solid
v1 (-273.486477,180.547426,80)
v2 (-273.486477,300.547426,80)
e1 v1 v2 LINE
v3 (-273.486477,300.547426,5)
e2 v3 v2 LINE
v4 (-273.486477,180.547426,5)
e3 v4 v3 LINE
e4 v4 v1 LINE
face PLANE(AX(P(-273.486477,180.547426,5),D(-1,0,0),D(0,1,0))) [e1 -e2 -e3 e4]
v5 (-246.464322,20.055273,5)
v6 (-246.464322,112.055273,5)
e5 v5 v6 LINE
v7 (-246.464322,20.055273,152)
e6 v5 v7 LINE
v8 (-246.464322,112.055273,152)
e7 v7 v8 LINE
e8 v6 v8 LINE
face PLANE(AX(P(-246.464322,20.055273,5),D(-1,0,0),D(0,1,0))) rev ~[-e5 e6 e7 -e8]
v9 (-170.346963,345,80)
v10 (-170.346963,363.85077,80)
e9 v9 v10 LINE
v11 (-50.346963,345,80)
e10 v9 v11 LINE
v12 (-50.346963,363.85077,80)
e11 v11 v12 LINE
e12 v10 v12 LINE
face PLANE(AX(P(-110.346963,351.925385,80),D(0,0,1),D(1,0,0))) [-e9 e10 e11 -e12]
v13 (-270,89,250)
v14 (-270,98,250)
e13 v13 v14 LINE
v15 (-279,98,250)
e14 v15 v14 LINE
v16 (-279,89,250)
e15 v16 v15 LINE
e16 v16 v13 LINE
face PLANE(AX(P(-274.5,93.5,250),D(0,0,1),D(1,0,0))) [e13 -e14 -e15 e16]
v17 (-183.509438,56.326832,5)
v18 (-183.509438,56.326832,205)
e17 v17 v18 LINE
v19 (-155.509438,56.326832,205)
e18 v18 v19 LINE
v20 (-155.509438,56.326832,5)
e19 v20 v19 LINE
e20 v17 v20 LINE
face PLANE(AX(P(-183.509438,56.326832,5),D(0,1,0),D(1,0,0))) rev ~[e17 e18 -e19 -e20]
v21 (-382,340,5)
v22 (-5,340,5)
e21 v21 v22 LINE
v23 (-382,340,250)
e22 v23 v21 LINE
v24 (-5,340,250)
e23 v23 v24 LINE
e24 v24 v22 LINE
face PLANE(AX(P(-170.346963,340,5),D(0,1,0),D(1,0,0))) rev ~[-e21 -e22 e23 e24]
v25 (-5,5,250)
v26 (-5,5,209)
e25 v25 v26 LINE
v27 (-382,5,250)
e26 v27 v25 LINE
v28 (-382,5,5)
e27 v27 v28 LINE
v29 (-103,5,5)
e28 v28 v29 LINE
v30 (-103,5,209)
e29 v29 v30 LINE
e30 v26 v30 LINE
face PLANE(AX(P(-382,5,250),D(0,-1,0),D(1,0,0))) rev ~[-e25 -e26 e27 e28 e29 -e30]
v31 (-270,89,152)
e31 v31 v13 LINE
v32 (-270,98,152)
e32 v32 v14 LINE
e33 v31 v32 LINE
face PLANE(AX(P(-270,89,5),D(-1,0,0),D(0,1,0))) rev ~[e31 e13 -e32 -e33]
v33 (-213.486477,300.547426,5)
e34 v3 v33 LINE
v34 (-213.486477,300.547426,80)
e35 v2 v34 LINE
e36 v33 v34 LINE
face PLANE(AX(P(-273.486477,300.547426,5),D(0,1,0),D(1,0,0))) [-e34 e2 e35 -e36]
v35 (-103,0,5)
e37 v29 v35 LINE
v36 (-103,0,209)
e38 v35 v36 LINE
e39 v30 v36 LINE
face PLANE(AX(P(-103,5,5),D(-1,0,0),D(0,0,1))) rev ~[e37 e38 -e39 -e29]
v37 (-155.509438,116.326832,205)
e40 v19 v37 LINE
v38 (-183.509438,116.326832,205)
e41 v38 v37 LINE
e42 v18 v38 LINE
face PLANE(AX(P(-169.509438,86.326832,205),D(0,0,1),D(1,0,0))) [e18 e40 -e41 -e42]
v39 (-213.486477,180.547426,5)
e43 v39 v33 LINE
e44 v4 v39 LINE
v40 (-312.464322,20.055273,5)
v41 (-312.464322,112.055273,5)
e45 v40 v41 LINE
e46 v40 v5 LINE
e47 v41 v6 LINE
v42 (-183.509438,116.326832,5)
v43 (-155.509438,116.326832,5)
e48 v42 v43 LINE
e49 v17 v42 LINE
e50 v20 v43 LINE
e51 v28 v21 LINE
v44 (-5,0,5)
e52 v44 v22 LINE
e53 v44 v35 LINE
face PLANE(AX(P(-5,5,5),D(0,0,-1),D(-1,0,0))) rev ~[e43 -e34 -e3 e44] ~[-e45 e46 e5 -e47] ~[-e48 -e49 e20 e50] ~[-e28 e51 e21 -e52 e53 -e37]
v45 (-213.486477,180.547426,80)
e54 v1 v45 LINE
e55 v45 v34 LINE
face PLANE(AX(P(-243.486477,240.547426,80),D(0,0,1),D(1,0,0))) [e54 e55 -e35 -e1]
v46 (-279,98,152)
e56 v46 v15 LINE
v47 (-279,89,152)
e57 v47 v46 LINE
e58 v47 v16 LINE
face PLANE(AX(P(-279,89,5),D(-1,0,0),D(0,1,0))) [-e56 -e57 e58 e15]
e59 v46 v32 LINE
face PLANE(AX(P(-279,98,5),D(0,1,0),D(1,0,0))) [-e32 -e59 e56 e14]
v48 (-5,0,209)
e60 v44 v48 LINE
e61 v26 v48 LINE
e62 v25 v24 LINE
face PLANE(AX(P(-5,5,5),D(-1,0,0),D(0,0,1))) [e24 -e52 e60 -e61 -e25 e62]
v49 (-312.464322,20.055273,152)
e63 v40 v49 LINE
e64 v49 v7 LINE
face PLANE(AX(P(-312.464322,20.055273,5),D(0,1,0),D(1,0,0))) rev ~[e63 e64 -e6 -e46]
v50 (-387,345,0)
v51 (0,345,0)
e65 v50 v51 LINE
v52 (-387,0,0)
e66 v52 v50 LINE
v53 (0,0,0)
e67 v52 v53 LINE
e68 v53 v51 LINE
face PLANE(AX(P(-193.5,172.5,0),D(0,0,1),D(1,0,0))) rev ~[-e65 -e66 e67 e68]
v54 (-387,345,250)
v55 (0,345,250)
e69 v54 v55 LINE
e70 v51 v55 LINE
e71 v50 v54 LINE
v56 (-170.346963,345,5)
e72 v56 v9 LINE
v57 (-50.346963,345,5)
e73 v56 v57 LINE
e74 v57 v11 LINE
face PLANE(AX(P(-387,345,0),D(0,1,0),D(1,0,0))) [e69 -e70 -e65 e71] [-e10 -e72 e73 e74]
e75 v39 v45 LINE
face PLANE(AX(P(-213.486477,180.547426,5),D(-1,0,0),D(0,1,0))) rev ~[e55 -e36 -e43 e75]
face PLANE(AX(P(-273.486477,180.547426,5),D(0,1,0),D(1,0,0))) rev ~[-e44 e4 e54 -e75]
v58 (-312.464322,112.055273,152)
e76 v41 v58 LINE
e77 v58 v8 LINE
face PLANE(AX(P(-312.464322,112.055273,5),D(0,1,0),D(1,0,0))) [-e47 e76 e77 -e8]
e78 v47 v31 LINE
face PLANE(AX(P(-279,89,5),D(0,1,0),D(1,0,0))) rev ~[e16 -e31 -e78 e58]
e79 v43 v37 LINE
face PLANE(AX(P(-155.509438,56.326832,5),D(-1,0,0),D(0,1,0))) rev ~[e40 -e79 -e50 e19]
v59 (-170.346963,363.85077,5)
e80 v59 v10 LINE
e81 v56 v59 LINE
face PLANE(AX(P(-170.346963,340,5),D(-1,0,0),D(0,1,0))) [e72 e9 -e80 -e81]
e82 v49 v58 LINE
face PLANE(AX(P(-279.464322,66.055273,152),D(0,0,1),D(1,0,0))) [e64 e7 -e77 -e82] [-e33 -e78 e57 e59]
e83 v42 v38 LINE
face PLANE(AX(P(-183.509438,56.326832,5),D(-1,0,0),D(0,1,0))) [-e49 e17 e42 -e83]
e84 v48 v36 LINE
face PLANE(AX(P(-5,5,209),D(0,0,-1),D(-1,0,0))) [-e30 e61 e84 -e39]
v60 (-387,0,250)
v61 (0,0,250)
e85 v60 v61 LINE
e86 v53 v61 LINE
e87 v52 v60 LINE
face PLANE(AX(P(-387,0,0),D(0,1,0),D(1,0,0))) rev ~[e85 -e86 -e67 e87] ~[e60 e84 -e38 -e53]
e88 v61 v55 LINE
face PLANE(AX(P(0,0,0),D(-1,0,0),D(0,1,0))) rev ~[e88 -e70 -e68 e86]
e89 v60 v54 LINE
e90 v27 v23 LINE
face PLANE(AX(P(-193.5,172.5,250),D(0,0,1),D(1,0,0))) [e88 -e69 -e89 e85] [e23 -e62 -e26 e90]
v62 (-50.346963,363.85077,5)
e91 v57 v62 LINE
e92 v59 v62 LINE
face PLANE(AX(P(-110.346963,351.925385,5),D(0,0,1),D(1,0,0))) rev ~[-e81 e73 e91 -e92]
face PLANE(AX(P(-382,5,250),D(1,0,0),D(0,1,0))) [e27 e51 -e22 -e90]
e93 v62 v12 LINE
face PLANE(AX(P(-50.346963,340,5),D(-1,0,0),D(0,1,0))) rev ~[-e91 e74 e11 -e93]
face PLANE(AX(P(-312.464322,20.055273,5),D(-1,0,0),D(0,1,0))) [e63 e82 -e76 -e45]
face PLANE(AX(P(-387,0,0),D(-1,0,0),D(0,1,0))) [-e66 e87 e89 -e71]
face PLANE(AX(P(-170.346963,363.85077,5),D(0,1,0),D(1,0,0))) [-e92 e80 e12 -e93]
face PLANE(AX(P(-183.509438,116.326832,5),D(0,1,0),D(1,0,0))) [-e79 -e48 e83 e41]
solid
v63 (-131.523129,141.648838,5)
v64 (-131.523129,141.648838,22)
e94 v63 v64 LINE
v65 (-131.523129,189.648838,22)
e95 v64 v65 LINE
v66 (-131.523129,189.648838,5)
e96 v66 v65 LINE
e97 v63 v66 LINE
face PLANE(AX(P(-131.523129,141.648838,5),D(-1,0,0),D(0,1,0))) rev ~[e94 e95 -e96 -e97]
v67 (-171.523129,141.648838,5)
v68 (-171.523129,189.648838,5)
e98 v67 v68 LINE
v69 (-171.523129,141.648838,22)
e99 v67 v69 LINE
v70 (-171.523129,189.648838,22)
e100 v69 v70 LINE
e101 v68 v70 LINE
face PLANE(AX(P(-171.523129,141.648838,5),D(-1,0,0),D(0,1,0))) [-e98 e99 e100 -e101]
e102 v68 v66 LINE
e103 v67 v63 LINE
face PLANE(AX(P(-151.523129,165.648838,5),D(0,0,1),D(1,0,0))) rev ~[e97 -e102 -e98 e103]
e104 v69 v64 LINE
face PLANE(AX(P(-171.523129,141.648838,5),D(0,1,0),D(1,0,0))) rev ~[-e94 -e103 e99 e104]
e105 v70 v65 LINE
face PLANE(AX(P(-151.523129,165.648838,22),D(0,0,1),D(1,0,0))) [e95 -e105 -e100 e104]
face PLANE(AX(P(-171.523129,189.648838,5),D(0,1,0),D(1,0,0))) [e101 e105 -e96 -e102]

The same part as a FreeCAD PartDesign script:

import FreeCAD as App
import Part
import Sketcher

V = App.Vector
Q = App.Units.Quantity

doc = App.newDocument("Part")
body = doc.addObject("PartDesign::Body", "Body")

# Sketch on XY plane
sketch1 = doc.addObject("Sketcher::SketchObject", "Sketch")
body.addObject(sketch1)
sketch1.AttachmentSupport = (doc.XY_Plane, [""])
sketch1.MapMode = "FlatFace"
sketch1.addGeometry([
    Part.LineSegment(V(-387, 345, 0), V(-387, 0, 0)),
    Part.LineSegment(V(-387, 0, 0), V(0, 0, 0)),
    Part.LineSegment(V(0, 0, 0), V(0, 345, 0)),
    Part.LineSegment(V(0, 345, 0), V(-387, 345, 0)),
], False)
sketch1.addConstraint([
    Sketcher.Constraint("Coincident", 0, 2, 1, 1),
    Sketcher.Constraint("Coincident", 1, 2, 2, 1),
    Sketcher.Constraint("Coincident", 2, 2, 3, 1),
    Sketcher.Constraint("Coincident", 3, 2, 0, 1),
    Sketcher.Constraint("Vertical", 0),
    Sketcher.Constraint("Horizontal", 1),
    Sketcher.Constraint("Vertical", 2),
    Sketcher.Constraint("Horizontal", 3),
    Sketcher.Constraint("Coincident", 1, 2, -1, 1),
    Sketcher.Constraint("DistanceX", 1, 1, 1, 2, Q("387 mm")),
    Sketcher.Constraint("DistanceY", 0, 2, 0, 1, Q("345 mm")),
])
pad1 = doc.addObject("PartDesign::Pad", "Pad")
body.addObject(pad1)
pad1.Profile = sketch1
pad1.Length = 250

# Sketch on XY plane
sketch2 = doc.addObject("Sketcher::SketchObject", "Sketch001")
body.addObject(sketch2)
sketch2.AttachmentSupport = (doc.XY_Plane, [""])
sketch2.MapMode = "FlatFace"
sketch2.AttachmentOffset = App.Placement(V(0, 0, 250), App.Rotation())
sketch2.addGeometry([
    Part.LineSegment(V(-382, 340, 0), V(-382, 5, 0)),
    Part.LineSegment(V(-382, 5, 0), V(-5, 5, 0)),
    Part.LineSegment(V(-5, 5, 0), V(-5, 340, 0)),
    Part.LineSegment(V(-5, 340, 0), V(-382, 340, 0)),
], False)
sketch2.addConstraint([
    Sketcher.Constraint("Coincident", 0, 2, 1, 1),
    Sketcher.Constraint("Coincident", 1, 2, 2, 1),
    Sketcher.Constraint("Coincident", 2, 2, 3, 1),
    Sketcher.Constraint("Coincident", 3, 2, 0, 1),
    Sketcher.Constraint("Vertical", 0),
    Sketcher.Constraint("Horizontal", 1),
    Sketcher.Constraint("Vertical", 2),
    Sketcher.Constraint("Horizontal", 3),
    Sketcher.Constraint("DistanceX", 1, 1, 1, 2, Q("377 mm")),
    Sketcher.Constraint("DistanceY", 0, 2, 0, 1, Q("335 mm")),
    Sketcher.Constraint("DistanceX", 0, 2, -1, 1, Q("382 mm")),
    Sketcher.Constraint("DistanceY", -1, 1, 0, 2, Q("5 mm")),
])
pocket1 = doc.addObject("PartDesign::Pocket", "Pocket")
body.addObject(pocket1)
pocket1.Profile = sketch2
pocket1.Length = 245

# Sketch on XZ plane
sketch3 = doc.addObject("Sketcher::SketchObject", "Sketch002")
body.addObject(sketch3)
sketch3.AttachmentSupport = (doc.XZ_Plane, [""])
sketch3.MapMode = "FlatFace"
sketch3.AttachmentOffset = App.Placement(V(0, 0, -5), App.Rotation())
sketch3.addGeometry([
    Part.LineSegment(V(-5, 209, 0), V(-5, 5, 0)),
    Part.LineSegment(V(-5, 5, 0), V(-103, 5, 0)),
    Part.LineSegment(V(-103, 5, 0), V(-103, 209, 0)),
    Part.LineSegment(V(-103, 209, 0), V(-5, 209, 0)),
], False)
sketch3.addConstraint([
    Sketcher.Constraint("Coincident", 0, 2, 1, 1),
    Sketcher.Constraint("Coincident", 1, 2, 2, 1),
    Sketcher.Constraint("Coincident", 2, 2, 3, 1),
    Sketcher.Constraint("Coincident", 3, 2, 0, 1),
    Sketcher.Constraint("Vertical", 0),
    Sketcher.Constraint("Horizontal", 1),
    Sketcher.Constraint("Vertical", 2),
    Sketcher.Constraint("Horizontal", 3),
    Sketcher.Constraint("DistanceX", 1, 2, 1, 1, Q("98 mm")),
    Sketcher.Constraint("DistanceY", 0, 2, 0, 1, Q("204 mm")),
    Sketcher.Constraint("DistanceX", 0, 2, -1, 1, Q("5 mm")),
    Sketcher.Constraint("DistanceY", -1, 1, 0, 2, Q("5 mm")),
])
pocket2 = doc.addObject("PartDesign::Pocket", "Pocket001")
body.addObject(pocket2)
pocket2.Profile = sketch3
pocket2.Length = 25
pocket2.Reversed = True

# Sketch on XY plane
sketch4 = doc.addObject("Sketcher::SketchObject", "Sketch003")
body.addObject(sketch4)
sketch4.AttachmentSupport = (doc.XY_Plane, [""])
sketch4.MapMode = "FlatFace"
sketch4.AttachmentOffset = App.Placement(V(0, 0, 5), App.Rotation())
sketch4.addGeometry([
    Part.LineSegment(V(-279, 98, 0), V(-279, 89, 0)),
    Part.LineSegment(V(-279, 89, 0), V(-270, 89, 0)),
    Part.LineSegment(V(-270, 89, 0), V(-270, 98, 0)),
    Part.LineSegment(V(-270, 98, 0), V(-279, 98, 0)),
], False)
sketch4.addConstraint([
    Sketcher.Constraint("Coincident", 0, 2, 1, 1),
    Sketcher.Constraint("Coincident", 1, 2, 2, 1),
    Sketcher.Constraint("Coincident", 2, 2, 3, 1),
    Sketcher.Constraint("Coincident", 3, 2, 0, 1),
    Sketcher.Constraint("Vertical", 0),
    Sketcher.Constraint("Horizontal", 1),
    Sketcher.Constraint("Vertical", 2),
    Sketcher.Constraint("Horizontal", 3),
    Sketcher.Constraint("Equal", 3, 0),
    Sketcher.Constraint("DistanceX", 1, 1, 1, 2, Q("9 mm")),
    Sketcher.Constraint("DistanceX", 0, 2, -1, 1, Q("279 mm")),
    Sketcher.Constraint("DistanceY", -1, 1, 0, 2, Q("89 mm")),
])
pad2 = doc.addObject("PartDesign::Pad", "Pad001")
body.addObject(pad2)
pad2.Profile = sketch4
pad2.Length = 245

# Sketch on XY plane
sketch5 = doc.addObject("Sketcher::SketchObject", "Sketch004")
body.addObject(sketch5)
sketch5.AttachmentSupport = (doc.XY_Plane, [""])
sketch5.MapMode = "FlatFace"
sketch5.AttachmentOffset = App.Placement(V(0, 0, 5), App.Rotation())
sketch5.addGeometry([
    Part.LineSegment(V(-273, 301, 0), V(-273, 181, 0)),
    Part.LineSegment(V(-273, 181, 0), V(-213, 181, 0)),
    Part.LineSegment(V(-213, 181, 0), V(-213, 301, 0)),
    Part.LineSegment(V(-213, 301, 0), V(-273, 301, 0)),
], False)
sketch5.addConstraint([
    Sketcher.Constraint("Coincident", 0, 2, 1, 1),
    Sketcher.Constraint("Coincident", 1, 2, 2, 1),
    Sketcher.Constraint("Coincident", 2, 2, 3, 1),
    Sketcher.Constraint("Coincident", 3, 2, 0, 1),
    Sketcher.Constraint("Vertical", 0),
    Sketcher.Constraint("Horizontal", 1),
    Sketcher.Constraint("Vertical", 2),
    Sketcher.Constraint("Horizontal", 3),
    Sketcher.Constraint("DistanceX", 1, 1, 1, 2, Q("60 mm")),
    Sketcher.Constraint("DistanceY", 0, 2, 0, 1, Q("120 mm")),
    Sketcher.Constraint("DistanceX", 0, 2, -1, 1, Q("273.486477 mm")),
    Sketcher.Constraint("DistanceY", -1, 1, 0, 2, Q("180.547426 mm")),
])
pad3 = doc.addObject("PartDesign::Pad", "Pad002")
body.addObject(pad3)
pad3.Profile = sketch5
pad3.Length = 75

# Sketch on XY plane
sketch6 = doc.addObject("Sketcher::SketchObject", "Sketch005")
body.addObject(sketch6)
sketch6.AttachmentSupport = (doc.XY_Plane, [""])
sketch6.MapMode = "FlatFace"
sketch6.AttachmentOffset = App.Placement(V(0, 0, 5), App.Rotation())
sketch6.addGeometry([
    Part.LineSegment(V(-170, 364, 0), V(-170, 340, 0)),
    Part.LineSegment(V(-170, 340, 0), V(-50, 340, 0)),
    Part.LineSegment(V(-50, 340, 0), V(-50, 364, 0)),
    Part.LineSegment(V(-50, 364, 0), V(-170, 364, 0)),
], False)
sketch6.addConstraint([
    Sketcher.Constraint("Coincident", 0, 2, 1, 1),
    Sketcher.Constraint("Coincident", 1, 2, 2, 1),
    Sketcher.Constraint("Coincident", 2, 2, 3, 1),
    Sketcher.Constraint("Coincident", 3, 2, 0, 1),
    Sketcher.Constraint("Vertical", 0),
    Sketcher.Constraint("Horizontal", 1),
    Sketcher.Constraint("Vertical", 2),
    Sketcher.Constraint("Horizontal", 3),
    Sketcher.Constraint("DistanceX", 1, 1, 1, 2, Q("120 mm")),
    Sketcher.Constraint("DistanceY", -1, 1, 0, 2, Q("340 mm")),
    Sketcher.Constraint("DistanceY", 0, 2, 0, 1, Q("23.85077 mm")),
    Sketcher.Constraint("DistanceX", 0, 2, -1, 1, Q("170.346963 mm")),
])
pad4 = doc.addObject("PartDesign::Pad", "Pad003")
body.addObject(pad4)
pad4.Profile = sketch6
pad4.Length = 75

# Sketch on XY plane
sketch7 = doc.addObject("Sketcher::SketchObject", "Sketch006")
body.addObject(sketch7)
sketch7.AttachmentSupport = (doc.XY_Plane, [""])
sketch7.MapMode = "FlatFace"
sketch7.AttachmentOffset = App.Placement(V(0, 0, 5), App.Rotation())
sketch7.addGeometry([
    Part.LineSegment(V(-184, 116, 0), V(-184, 56, 0)),
    Part.LineSegment(V(-184, 56, 0), V(-156, 56, 0)),
    Part.LineSegment(V(-156, 56, 0), V(-156, 116, 0)),
    Part.LineSegment(V(-156, 116, 0), V(-184, 116, 0)),
], False)
sketch7.addConstraint([
    Sketcher.Constraint("Coincident", 0, 2, 1, 1),
    Sketcher.Constraint("Coincident", 1, 2, 2, 1),
    Sketcher.Constraint("Coincident", 2, 2, 3, 1),
    Sketcher.Constraint("Coincident", 3, 2, 0, 1),
    Sketcher.Constraint("Vertical", 0),
    Sketcher.Constraint("Horizontal", 1),
    Sketcher.Constraint("Vertical", 2),
    Sketcher.Constraint("Horizontal", 3),
    Sketcher.Constraint("DistanceX", 1, 1, 1, 2, Q("28 mm")),
    Sketcher.Constraint("DistanceY", 0, 2, 0, 1, Q("60 mm")),
    Sketcher.Constraint("DistanceX", 0, 2, -1, 1, Q("183.509438 mm")),
    Sketcher.Constraint("DistanceY", -1, 1, 0, 2, Q("56.326832 mm")),
])
pad5 = doc.addObject("PartDesign::Pad", "Pad004")
body.addObject(pad5)
pad5.Profile = sketch7
pad5.Length = 200

# Sketch on XY plane
sketch8 = doc.addObject("Sketcher::SketchObject", "Sketch007")
body.addObject(sketch8)
sketch8.AttachmentSupport = (doc.XY_Plane, [""])
sketch8.MapMode = "FlatFace"
sketch8.AttachmentOffset = App.Placement(V(0, 0, 5), App.Rotation())
sketch8.addGeometry([
    Part.LineSegment(V(-312, 112, 0), V(-312, 20, 0)),  # 0
    Part.LineSegment(V(-312, 20, 0), V(-246, 20, 0)),  # 1
    Part.LineSegment(V(-246, 20, 0), V(-246, 112, 0)),  # 2
    Part.LineSegment(V(-246, 112, 0), V(-312, 112, 0)),  # 3
    Part.LineSegment(V(-270, 89, 0), V(-279, 89, 0)),  # 4
    Part.LineSegment(V(-279, 89, 0), V(-279, 98, 0)),  # 5
    Part.LineSegment(V(-279, 98, 0), V(-270, 98, 0)),  # 6
    Part.LineSegment(V(-270, 98, 0), V(-270, 89, 0)),  # 7
], False)
sketch8.addConstraint([
    Sketcher.Constraint("Coincident", 0, 2, 1, 1),
    Sketcher.Constraint("Coincident", 1, 2, 2, 1),
    Sketcher.Constraint("Coincident", 2, 2, 3, 1),
    Sketcher.Constraint("Coincident", 3, 2, 0, 1),
    Sketcher.Constraint("Coincident", 4, 2, 5, 1),
    Sketcher.Constraint("Coincident", 5, 2, 6, 1),
    Sketcher.Constraint("Coincident", 6, 2, 7, 1),
    Sketcher.Constraint("Coincident", 7, 2, 4, 1),
    Sketcher.Constraint("Vertical", 0),
    Sketcher.Constraint("Horizontal", 1),
    Sketcher.Constraint("Vertical", 2),
    Sketcher.Constraint("Horizontal", 3),
    Sketcher.Constraint("Horizontal", 4),
    Sketcher.Constraint("Vertical", 5),
    Sketcher.Constraint("Horizontal", 6),
    Sketcher.Constraint("Vertical", 7),
    Sketcher.Constraint("Equal", 6, 5),
    Sketcher.Constraint("DistanceX", 1, 1, 1, 2, Q("66 mm")),
    Sketcher.Constraint("DistanceX", 4, 2, 4, 1, Q("9 mm")),
    Sketcher.Constraint("DistanceY", 0, 2, 0, 1, Q("92 mm")),
    Sketcher.Constraint("DistanceX", 4, 2, -1, 1, Q("279 mm")),
    Sketcher.Constraint("DistanceY", -1, 1, 4, 2, Q("89 mm")),
    Sketcher.Constraint("DistanceX", 0, 2, -1, 1, Q("312.464322 mm")),
    Sketcher.Constraint("DistanceY", -1, 1, 0, 2, Q("20.055273 mm")),
])
pad6 = doc.addObject("PartDesign::Pad", "Pad005")
body.addObject(pad6)
pad6.Profile = sketch8
pad6.Length = 147
body2 = doc.addObject("PartDesign::Body", "Body001")

# Sketch on XY plane
sketch9 = doc.addObject("Sketcher::SketchObject", "Sketch008")
body2.addObject(sketch9)
sketch9.AttachmentSupport = (doc.getObject("XY_Plane001"), [""])
sketch9.MapMode = "FlatFace"
sketch9.AttachmentOffset = App.Placement(V(0, 0, 5), App.Rotation())
sketch9.addGeometry([
    Part.LineSegment(V(-172, 190, 0), V(-172, 142, 0)),
    Part.LineSegment(V(-172, 142, 0), V(-132, 142, 0)),
    Part.LineSegment(V(-132, 142, 0), V(-132, 190, 0)),
    Part.LineSegment(V(-132, 190, 0), V(-172, 190, 0)),
], False)
sketch9.addConstraint([
    Sketcher.Constraint("Coincident", 0, 2, 1, 1),
    Sketcher.Constraint("Coincident", 1, 2, 2, 1),
    Sketcher.Constraint("Coincident", 2, 2, 3, 1),
    Sketcher.Constraint("Coincident", 3, 2, 0, 1),
    Sketcher.Constraint("Vertical", 0),
    Sketcher.Constraint("Horizontal", 1),
    Sketcher.Constraint("Vertical", 2),
    Sketcher.Constraint("Horizontal", 3),
    Sketcher.Constraint("DistanceX", 1, 1, 1, 2, Q("40 mm")),
    Sketcher.Constraint("DistanceY", 0, 2, 0, 1, Q("48 mm")),
    Sketcher.Constraint("DistanceX", 0, 2, -1, 1, Q("171.523129 mm")),
    Sketcher.Constraint("DistanceY", -1, 1, 0, 2, Q("141.648838 mm")),
])
pad7 = doc.addObject("PartDesign::Pad", "Pad006")
body2.addObject(pad7)
pad7.Profile = sketch9
pad7.Length = 17

doc.recompute()
